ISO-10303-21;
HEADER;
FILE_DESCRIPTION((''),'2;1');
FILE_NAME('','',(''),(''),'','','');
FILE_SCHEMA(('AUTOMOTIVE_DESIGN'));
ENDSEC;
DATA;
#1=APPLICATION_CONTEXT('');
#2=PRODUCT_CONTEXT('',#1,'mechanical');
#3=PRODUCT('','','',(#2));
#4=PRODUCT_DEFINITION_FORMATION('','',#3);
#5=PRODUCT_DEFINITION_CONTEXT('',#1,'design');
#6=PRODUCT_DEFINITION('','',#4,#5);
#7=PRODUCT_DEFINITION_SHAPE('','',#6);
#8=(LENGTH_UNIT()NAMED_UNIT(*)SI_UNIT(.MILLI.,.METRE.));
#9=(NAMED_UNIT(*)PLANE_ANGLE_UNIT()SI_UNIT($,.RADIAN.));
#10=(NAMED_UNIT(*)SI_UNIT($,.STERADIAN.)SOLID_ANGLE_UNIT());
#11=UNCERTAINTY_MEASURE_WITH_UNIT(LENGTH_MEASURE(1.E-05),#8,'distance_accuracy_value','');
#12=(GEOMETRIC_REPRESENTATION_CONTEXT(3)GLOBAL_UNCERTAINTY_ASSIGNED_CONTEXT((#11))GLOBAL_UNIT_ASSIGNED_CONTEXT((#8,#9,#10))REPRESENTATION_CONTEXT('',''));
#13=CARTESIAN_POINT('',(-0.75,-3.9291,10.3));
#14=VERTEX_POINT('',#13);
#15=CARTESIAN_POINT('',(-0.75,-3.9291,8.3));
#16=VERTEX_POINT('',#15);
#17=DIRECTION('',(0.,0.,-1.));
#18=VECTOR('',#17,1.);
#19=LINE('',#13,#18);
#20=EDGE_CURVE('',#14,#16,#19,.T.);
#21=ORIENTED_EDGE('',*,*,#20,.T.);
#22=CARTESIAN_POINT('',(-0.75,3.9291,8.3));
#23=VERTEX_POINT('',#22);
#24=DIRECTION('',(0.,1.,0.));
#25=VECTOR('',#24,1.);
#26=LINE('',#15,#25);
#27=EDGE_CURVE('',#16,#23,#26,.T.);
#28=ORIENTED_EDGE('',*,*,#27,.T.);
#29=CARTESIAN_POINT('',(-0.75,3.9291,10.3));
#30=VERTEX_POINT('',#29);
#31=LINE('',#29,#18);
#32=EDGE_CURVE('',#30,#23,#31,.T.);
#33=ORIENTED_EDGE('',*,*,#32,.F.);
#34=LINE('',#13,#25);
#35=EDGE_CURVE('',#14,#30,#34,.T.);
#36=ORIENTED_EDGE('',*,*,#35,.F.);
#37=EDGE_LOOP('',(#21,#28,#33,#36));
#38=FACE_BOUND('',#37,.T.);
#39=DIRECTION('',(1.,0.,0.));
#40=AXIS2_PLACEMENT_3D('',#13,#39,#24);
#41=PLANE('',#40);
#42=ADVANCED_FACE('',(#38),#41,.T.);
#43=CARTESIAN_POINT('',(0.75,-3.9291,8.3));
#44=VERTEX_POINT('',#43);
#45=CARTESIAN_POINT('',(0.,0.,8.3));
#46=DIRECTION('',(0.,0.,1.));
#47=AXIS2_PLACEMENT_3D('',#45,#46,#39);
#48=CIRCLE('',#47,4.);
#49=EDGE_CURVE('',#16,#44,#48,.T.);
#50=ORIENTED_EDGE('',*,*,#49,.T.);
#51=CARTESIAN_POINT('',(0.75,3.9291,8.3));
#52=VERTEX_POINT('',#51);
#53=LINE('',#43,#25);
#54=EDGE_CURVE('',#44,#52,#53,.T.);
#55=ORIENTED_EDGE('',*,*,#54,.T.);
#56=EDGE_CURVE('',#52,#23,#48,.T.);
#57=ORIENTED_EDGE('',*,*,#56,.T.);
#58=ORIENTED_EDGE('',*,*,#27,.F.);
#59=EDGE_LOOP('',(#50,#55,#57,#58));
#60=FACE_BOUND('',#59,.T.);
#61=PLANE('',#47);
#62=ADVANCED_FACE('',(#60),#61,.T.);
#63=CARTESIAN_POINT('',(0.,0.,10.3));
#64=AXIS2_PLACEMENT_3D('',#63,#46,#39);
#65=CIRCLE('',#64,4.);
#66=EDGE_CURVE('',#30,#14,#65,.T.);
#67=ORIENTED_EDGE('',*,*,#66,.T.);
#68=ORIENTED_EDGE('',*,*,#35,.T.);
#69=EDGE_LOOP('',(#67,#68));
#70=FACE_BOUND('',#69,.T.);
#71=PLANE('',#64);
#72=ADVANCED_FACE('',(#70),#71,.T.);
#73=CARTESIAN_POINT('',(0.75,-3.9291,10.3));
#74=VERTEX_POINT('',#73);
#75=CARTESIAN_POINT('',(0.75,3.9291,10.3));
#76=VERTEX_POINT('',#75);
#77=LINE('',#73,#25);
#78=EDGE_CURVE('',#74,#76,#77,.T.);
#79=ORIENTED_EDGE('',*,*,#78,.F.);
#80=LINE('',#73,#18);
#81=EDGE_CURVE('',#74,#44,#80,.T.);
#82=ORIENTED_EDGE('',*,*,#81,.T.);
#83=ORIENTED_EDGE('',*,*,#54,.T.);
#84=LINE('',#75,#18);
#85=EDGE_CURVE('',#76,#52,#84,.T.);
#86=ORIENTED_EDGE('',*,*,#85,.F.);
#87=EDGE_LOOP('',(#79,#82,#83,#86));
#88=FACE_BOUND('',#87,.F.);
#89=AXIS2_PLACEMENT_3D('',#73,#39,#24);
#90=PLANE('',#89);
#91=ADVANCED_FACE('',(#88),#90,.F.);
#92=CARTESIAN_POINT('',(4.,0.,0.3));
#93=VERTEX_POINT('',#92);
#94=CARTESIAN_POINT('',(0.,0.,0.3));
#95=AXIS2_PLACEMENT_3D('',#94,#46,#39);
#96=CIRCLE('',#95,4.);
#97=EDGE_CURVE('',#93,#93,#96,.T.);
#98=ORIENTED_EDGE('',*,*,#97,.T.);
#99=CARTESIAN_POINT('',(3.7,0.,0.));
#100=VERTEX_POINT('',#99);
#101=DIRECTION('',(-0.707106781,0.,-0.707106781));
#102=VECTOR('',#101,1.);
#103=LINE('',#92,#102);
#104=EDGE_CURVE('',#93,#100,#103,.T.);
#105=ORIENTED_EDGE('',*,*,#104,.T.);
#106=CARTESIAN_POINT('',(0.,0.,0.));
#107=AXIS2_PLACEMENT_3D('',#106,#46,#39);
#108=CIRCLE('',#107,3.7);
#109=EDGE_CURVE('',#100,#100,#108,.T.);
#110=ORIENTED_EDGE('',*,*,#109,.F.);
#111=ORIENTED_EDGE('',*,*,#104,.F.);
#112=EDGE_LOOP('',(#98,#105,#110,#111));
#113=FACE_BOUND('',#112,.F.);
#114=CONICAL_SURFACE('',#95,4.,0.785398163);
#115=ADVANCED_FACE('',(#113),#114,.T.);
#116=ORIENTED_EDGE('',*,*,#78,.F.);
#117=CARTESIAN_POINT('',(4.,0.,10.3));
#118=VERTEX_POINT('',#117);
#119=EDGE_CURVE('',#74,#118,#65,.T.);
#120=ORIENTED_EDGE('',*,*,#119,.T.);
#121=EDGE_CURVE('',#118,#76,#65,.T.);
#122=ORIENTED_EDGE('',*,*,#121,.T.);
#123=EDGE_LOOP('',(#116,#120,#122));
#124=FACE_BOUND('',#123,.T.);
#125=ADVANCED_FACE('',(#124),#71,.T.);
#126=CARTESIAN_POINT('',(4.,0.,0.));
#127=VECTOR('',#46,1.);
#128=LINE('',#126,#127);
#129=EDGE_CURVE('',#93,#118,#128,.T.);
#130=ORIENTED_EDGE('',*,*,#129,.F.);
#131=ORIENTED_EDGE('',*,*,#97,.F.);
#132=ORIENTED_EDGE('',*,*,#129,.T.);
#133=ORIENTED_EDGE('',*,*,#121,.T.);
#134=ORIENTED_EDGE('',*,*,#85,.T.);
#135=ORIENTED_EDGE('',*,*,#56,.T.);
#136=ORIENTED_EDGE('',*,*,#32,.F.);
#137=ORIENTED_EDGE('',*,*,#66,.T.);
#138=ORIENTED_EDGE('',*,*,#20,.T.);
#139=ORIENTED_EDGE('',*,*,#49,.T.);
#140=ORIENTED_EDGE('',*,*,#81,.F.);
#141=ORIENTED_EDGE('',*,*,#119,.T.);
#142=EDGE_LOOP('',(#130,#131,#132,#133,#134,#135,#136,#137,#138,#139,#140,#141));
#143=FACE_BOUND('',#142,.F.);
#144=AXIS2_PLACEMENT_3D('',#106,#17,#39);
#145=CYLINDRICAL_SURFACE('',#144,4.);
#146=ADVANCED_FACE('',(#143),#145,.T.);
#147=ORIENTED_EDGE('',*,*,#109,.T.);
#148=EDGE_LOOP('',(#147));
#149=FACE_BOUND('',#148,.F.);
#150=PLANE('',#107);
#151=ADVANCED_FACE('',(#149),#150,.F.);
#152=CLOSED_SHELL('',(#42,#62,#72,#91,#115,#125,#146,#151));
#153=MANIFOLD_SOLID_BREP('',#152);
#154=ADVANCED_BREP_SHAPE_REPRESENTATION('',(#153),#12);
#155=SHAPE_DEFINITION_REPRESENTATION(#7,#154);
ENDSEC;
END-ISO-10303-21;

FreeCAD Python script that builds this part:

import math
import FreeCAD as App
import Part
import Sketcher

V = App.Vector


def edges_at(feature, points):
    """Names of the edges that pass closest to the given points."""
    edges = feature.Shape.Edges
    near = lambda p: min(range(len(edges)), key=lambda i: edges[i].distToShape(Part.Vertex(*p))[0])
    return sorted({f"Edge{near(p) + 1}" for p in points})

doc = App.newDocument("Part")
params = doc.addObject("Spreadsheet::Sheet", "Params")
for row, (alias, value) in enumerate([
    ("sketch1_diameter", "8 mm"),
    ("pad1_length", "10.3 mm"),
    ("chamfer_size", "0.3 mm"),
    ("sketch2_radius", "4 mm"),
    ("pocket1_length", "2 mm"),
], start=1):
    params.set(f"A{row}", alias)
    params.set(f"B{row}", "=" + value)
    params.setAlias(f"B{row}", alias)

body = doc.addObject("PartDesign::Body", "Body")

sketch1 = body.newObject("Sketcher::SketchObject", "Sketch")
sketch1.AttachmentSupport = (doc.getObject("XY_Plane"), [""])
sketch1.MapMode = "FlatFace"
sketch1.addGeometry(Part.Circle(V(0, 0, 0), V(0, 0, 1), 4), False)
sketch1.addConstraint(Sketcher.Constraint("Coincident", 0, 3, -1, 1))
sketch1.addConstraint(Sketcher.Constraint("Diameter", 0, 8.0))
sketch1.setExpression("Constraints[1]", "Params.sketch1_diameter")
pad1 = body.newObject("PartDesign::Pad", "Pad")
pad1.Profile = sketch1
pad1.setExpression("Length", "Params.pad1_length")
doc.recompute()

chamfer = body.newObject("PartDesign::Chamfer", "Chamfer")
chamfer.Base = (pad1, edges_at(pad1, [(-4, 0, 0)]))
chamfer.setExpression("Size", "Params.chamfer_size")

sketch2 = body.newObject("Sketcher::SketchObject", "Sketch001")
sketch2.AttachmentSupport = (doc.getObject("XY_Plane"), [""])
sketch2.MapMode = "FlatFace"
sketch2.AttachmentOffset = App.Placement(V(0, 0, 10.3), App.Rotation())
sketch2.addGeometry(Part.LineSegment(V(0.8, -3.9, 0), V(0.8, 3.9, 0)), False)
sketch2.addGeometry(Part.ArcOfCircle(Part.Circle(V(0, 0, 0), V(0, 0, 1), 4), math.radians(79), math.radians(101)), False)
sketch2.addGeometry(Part.LineSegment(V(-0.8, 3.9, 0), V(-0.8, -3.9, 0)), False)
sketch2.addGeometry(Part.ArcOfCircle(Part.Circle(V(0, 0, 0), V(0, 0, 1), 4), math.radians(-101), math.radians(-79)), False)
sketch2.addConstraint(Sketcher.Constraint("Coincident", 0, 2, 1, 1))
sketch2.addConstraint(Sketcher.Constraint("Coincident", 1, 2, 2, 1))
sketch2.addConstraint(Sketcher.Constraint("Coincident", 2, 2, 3, 1))
sketch2.addConstraint(Sketcher.Constraint("Coincident", 3, 2, 0, 1))
sketch2.addConstraint(Sketcher.Constraint("Vertical", 0))
sketch2.addConstraint(Sketcher.Constraint("Vertical", 2))
sketch2.addConstraint(Sketcher.Constraint("Coincident", 1, 3, -1, 1))
sketch2.addConstraint(Sketcher.Constraint("Coincident", 3, 3, -1, 1))
sketch2.addConstraint(Sketcher.Constraint("Equal", 1, 3))
sketch2.addConstraint(Sketcher.Constraint("Horizontal", 0, 2, 1, 2))
sketch2.addConstraint(Sketcher.Constraint("Radius", 1, 4.0))
sketch2.addConstraint(Sketcher.Constraint("DistanceX", 1, 2, 0, 2, 1.5))
sketch2.setExpression("Constraints[10]", "Params.sketch2_radius")
pocket1 = body.newObject("PartDesign::Pocket", "Pocket")
pocket1.Profile = sketch2
pocket1.setExpression("Length", "Params.pocket1_length")

doc.recompute()
